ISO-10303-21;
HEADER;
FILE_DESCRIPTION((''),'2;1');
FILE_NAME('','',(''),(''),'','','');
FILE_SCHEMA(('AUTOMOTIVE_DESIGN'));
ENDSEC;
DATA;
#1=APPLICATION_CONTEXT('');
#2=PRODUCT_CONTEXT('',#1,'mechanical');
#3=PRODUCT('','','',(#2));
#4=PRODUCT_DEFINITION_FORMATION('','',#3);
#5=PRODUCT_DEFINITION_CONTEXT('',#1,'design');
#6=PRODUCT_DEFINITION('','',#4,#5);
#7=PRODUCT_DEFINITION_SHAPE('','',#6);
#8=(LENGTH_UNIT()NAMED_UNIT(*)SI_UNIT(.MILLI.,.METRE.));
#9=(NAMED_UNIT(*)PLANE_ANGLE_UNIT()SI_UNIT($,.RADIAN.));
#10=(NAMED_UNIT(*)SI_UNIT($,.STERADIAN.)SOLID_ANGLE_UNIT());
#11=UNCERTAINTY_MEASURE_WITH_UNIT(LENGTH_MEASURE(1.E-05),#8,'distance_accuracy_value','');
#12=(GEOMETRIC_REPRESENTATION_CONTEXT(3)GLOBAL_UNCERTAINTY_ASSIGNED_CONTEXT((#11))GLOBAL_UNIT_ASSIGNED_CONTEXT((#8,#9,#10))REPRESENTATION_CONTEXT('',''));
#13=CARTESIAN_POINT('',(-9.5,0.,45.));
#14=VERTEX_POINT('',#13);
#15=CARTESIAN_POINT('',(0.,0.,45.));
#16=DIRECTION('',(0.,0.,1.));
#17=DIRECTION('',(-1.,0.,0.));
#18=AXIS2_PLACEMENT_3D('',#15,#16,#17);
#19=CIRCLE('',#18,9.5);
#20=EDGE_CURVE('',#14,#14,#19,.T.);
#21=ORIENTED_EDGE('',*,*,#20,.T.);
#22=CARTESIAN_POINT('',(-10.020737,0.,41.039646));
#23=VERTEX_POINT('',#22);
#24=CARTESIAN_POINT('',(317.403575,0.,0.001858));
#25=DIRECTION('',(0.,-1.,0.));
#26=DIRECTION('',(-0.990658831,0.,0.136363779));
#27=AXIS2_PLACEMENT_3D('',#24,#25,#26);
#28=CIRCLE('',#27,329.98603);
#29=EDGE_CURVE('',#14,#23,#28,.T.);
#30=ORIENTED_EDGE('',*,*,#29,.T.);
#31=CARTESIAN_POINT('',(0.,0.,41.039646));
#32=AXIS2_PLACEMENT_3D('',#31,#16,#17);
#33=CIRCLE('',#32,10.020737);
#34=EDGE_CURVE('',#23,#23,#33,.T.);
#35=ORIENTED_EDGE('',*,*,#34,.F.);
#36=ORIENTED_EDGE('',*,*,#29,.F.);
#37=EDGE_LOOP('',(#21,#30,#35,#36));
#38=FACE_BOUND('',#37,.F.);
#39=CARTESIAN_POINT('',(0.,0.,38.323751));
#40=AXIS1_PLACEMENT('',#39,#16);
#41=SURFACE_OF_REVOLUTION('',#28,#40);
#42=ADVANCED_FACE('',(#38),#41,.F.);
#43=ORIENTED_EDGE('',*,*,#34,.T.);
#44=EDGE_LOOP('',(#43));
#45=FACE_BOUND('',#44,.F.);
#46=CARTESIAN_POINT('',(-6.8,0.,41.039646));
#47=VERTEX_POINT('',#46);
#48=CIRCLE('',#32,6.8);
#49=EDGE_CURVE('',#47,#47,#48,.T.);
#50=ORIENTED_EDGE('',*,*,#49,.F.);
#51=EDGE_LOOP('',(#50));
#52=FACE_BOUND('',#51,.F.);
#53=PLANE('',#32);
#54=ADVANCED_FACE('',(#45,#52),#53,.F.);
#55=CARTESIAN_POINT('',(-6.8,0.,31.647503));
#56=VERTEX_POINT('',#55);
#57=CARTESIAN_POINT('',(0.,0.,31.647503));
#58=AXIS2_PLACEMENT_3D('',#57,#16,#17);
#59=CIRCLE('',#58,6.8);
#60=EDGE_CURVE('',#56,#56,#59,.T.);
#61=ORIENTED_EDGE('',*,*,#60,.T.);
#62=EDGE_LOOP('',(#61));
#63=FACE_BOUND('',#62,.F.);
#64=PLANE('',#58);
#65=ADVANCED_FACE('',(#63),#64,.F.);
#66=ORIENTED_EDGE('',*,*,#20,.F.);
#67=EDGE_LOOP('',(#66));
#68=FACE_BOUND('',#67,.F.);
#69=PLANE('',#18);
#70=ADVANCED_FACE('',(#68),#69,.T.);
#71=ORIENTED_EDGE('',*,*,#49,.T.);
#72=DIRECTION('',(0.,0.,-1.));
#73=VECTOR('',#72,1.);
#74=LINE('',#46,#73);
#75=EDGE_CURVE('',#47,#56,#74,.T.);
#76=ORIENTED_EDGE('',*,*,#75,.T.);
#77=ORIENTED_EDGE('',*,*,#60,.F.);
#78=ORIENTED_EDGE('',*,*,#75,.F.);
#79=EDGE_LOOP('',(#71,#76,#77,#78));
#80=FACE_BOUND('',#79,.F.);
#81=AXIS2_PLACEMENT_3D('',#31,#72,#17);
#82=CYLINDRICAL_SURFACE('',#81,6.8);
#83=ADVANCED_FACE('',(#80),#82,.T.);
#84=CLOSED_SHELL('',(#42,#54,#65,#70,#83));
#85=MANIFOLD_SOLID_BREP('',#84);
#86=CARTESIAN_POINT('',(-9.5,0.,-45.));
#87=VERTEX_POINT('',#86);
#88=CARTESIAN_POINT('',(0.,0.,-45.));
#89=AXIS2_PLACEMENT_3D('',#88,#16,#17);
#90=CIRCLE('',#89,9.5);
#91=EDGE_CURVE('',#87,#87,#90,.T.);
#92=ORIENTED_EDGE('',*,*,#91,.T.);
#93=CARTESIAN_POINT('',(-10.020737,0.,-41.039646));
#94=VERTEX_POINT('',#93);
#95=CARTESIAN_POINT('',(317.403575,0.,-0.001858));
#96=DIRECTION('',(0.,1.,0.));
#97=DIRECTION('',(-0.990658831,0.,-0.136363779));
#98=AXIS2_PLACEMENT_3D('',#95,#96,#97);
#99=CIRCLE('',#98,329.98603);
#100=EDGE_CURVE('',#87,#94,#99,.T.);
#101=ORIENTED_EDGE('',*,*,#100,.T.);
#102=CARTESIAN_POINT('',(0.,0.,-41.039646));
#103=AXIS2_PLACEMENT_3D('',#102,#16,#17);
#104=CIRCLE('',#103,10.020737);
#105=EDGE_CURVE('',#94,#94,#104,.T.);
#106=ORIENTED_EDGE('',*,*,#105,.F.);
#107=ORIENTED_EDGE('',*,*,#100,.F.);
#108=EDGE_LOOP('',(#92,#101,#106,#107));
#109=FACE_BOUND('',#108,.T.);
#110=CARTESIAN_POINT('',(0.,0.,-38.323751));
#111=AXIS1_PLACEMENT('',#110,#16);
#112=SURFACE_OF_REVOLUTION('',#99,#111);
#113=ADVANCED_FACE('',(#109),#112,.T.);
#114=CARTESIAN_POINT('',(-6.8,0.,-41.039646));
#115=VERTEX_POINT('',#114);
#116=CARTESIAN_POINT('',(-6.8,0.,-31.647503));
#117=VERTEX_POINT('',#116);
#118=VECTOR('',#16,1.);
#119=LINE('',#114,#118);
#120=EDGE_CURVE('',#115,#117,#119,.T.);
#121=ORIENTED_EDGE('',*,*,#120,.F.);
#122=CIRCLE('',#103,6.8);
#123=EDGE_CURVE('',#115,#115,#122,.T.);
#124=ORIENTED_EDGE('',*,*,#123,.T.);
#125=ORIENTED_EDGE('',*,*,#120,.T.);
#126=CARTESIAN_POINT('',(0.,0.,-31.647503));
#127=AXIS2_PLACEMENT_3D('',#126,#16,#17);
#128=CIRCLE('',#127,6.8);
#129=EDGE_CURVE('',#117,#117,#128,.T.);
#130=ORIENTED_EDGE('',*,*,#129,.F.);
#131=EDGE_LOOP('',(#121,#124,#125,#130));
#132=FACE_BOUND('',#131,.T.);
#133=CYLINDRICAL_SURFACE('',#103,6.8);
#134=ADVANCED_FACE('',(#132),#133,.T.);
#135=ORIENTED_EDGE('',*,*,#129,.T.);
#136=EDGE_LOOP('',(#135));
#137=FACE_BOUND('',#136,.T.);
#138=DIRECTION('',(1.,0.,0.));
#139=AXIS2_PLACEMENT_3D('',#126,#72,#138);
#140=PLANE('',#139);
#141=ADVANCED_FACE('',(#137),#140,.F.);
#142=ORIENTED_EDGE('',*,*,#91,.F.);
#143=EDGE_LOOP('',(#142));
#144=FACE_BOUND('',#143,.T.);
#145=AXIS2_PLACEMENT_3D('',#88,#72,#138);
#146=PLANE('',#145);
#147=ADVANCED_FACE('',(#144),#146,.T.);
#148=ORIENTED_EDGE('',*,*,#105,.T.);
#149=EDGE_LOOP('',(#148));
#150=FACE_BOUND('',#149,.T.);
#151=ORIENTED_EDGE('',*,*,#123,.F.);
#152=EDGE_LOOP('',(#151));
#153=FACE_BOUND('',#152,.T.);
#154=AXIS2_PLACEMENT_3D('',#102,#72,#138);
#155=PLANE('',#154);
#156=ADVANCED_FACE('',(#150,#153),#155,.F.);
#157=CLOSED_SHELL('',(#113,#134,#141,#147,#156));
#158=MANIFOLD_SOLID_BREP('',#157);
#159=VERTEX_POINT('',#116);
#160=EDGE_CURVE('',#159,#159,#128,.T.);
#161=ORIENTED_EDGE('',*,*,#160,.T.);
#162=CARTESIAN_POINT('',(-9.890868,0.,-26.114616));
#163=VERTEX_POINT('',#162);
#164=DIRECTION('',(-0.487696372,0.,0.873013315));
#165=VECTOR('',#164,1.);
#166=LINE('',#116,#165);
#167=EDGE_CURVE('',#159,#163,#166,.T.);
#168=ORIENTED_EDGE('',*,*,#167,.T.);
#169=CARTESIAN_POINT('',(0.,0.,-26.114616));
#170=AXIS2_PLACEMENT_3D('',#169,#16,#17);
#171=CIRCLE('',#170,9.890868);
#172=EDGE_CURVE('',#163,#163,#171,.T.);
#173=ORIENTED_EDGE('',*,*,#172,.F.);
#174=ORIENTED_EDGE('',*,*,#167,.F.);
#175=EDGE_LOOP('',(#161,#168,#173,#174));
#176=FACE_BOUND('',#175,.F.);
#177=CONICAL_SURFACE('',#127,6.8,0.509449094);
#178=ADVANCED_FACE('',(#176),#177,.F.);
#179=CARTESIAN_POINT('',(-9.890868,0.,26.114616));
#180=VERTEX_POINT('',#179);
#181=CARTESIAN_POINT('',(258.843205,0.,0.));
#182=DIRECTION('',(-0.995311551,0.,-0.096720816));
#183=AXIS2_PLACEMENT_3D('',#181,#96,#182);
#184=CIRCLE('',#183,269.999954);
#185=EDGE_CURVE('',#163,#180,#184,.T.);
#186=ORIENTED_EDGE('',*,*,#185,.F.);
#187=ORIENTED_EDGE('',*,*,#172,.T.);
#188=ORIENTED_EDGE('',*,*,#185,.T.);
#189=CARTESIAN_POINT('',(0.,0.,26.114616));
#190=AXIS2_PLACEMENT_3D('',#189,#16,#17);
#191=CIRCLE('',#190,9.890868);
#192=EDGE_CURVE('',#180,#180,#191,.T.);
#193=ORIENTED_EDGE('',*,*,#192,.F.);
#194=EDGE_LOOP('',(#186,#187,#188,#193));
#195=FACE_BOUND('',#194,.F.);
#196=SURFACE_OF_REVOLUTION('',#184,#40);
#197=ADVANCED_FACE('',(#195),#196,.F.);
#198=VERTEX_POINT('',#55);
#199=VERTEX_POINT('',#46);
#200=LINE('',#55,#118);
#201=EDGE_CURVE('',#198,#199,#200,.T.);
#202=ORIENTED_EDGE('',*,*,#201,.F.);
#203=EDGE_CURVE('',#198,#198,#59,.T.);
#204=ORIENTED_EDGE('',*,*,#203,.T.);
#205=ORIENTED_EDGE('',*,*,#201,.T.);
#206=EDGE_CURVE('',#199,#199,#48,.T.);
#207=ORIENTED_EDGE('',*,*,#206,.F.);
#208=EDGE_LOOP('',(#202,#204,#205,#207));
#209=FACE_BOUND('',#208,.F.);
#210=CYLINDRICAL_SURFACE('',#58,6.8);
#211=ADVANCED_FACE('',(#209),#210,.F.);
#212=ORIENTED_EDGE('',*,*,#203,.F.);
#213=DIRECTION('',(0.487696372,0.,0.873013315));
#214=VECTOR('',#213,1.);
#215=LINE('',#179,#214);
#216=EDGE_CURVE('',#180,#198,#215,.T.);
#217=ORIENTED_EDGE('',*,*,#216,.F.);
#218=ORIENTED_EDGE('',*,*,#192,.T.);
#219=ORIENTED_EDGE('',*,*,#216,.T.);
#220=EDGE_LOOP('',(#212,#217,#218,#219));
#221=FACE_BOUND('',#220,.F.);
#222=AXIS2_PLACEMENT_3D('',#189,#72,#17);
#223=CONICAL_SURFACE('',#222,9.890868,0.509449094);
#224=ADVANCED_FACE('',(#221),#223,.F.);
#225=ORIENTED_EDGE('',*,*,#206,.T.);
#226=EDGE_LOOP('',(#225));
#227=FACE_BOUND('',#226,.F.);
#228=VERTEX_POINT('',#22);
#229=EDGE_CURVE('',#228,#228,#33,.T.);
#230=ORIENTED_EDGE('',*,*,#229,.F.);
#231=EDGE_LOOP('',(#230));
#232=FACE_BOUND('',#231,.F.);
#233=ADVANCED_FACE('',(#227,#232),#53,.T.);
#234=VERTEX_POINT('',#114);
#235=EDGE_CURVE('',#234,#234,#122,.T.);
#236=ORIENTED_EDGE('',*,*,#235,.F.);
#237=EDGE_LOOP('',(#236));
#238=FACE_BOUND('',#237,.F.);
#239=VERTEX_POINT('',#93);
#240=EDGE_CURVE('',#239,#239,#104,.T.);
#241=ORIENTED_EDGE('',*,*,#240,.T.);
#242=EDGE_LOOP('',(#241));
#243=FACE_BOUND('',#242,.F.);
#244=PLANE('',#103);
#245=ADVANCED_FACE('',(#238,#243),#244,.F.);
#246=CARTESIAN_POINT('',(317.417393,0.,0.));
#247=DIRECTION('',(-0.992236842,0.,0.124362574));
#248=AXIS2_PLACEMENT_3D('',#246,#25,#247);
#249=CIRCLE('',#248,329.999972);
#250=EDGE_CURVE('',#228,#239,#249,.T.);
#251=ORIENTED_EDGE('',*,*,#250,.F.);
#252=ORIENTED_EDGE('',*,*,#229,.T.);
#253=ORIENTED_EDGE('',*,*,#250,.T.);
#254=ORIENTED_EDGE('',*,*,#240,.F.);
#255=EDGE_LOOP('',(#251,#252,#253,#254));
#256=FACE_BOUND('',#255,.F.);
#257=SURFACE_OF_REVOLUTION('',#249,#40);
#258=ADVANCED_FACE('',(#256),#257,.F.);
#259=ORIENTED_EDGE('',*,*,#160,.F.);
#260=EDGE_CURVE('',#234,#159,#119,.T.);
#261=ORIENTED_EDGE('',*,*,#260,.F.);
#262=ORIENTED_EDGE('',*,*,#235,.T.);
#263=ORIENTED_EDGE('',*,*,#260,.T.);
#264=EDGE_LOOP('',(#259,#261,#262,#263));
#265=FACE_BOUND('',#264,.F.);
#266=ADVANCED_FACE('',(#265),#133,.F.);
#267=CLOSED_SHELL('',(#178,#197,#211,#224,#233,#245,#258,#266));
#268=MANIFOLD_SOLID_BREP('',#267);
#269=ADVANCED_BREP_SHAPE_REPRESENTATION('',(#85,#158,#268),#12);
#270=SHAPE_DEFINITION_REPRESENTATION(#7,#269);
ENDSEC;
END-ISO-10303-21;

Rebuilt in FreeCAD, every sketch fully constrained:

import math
import FreeCAD as App
import Part
import Sketcher
from FreeCAD import Vector
Q = App.Units.Quantity

doc = App.newDocument("Part")
body = doc.addObject("PartDesign::Body", "Body")

# Sketch on XZ plane
sketch1 = body.newObject("Sketcher::SketchObject", "Sketch")
sketch1.AttachmentSupport = (doc.getObject("XZ_Plane"), [""])
sketch1.MapMode = "FlatFace"
sketch1.addGeometry(Part.LineSegment(Vector(-6.8, 41, 0), Vector(-10, 41, 0)), False)
sketch1.addGeometry(Part.ArcOfCircle(Part.Circle(Vector(317.4, 0, 0), Vector(0, 0, 1), 330), math.radians(172.86), math.radians(187.14)), False)
sketch1.addGeometry(Part.LineSegment(Vector(-10, -41, 0), Vector(-6.8, -41, 0)), False)
sketch1.addGeometry(Part.LineSegment(Vector(-6.8, -41, 0), Vector(-6.8, -31.6, 0)), False)
sketch1.addGeometry(Part.LineSegment(Vector(-6.8, -31.6, 0), Vector(-9.9, -26.1, 0)), False)
sketch1.addGeometry(Part.ArcOfCircle(Part.Circle(Vector(258.8, 0, 0), Vector(0, 0, 1), 270), math.radians(174.45), math.radians(185.55)), False)
sketch1.addGeometry(Part.LineSegment(Vector(-9.9, 26.1, 0), Vector(-6.8, 31.6, 0)), False)
sketch1.addGeometry(Part.LineSegment(Vector(-6.8, 31.6, 0), Vector(-6.8, 41, 0)), False)
sketch1.addConstraint(Sketcher.Constraint("Coincident", 0, 2, 1, 1))
sketch1.addConstraint(Sketcher.Constraint("Coincident", 1, 2, 2, 1))
sketch1.addConstraint(Sketcher.Constraint("Coincident", 2, 2, 3, 1))
sketch1.addConstraint(Sketcher.Constraint("Coincident", 3, 2, 4, 1))
sketch1.addConstraint(Sketcher.Constraint("Coincident", 4, 2, 5, 2))
sketch1.addConstraint(Sketcher.Constraint("Coincident", 5, 1, 6, 1))
sketch1.addConstraint(Sketcher.Constraint("Coincident", 6, 2, 7, 1))
sketch1.addConstraint(Sketcher.Constraint("Coincident", 7, 2, 0, 1))
sketch1.addConstraint(Sketcher.Constraint("Horizontal", 0))
sketch1.addConstraint(Sketcher.Constraint("Horizontal", 2))
sketch1.addConstraint(Sketcher.Constraint("Vertical", 3))
sketch1.addConstraint(Sketcher.Constraint("Vertical", 7))
sketch1.addConstraint(Sketcher.Constraint("Symmetric", 0, 2, 1, 2, -1))
sketch1.addConstraint(Sketcher.Constraint("Symmetric", 4, 2, 5, 1, -1))
sketch1.addConstraint(Sketcher.Constraint("Symmetric", 3, 2, 6, 2, -1))
sketch1.addConstraint(Sketcher.Constraint("DistanceX", 2, 2, -1, 1, Q("6.8 mm")))
sketch1.addConstraint(Sketcher.Constraint("Radius", 1, Q("329.999972 mm")))
sketch1.addConstraint(Sketcher.Constraint("Radius", 5, Q("269.999954 mm")))
sketch1.addConstraint(Sketcher.Constraint("Distance", 4, Q("6.337689 mm")))
sketch1.addConstraint(Sketcher.Constraint("DistanceX", 0, 2, 0, 1, Q("3.220737 mm")))
sketch1.addConstraint(Sketcher.Constraint("DistanceY", 3, 1, 3, 2, Q("9.392143 mm")))
sketch1.addConstraint(Sketcher.Constraint("DistanceX", 5, 1, -1, 1, Q("9.890868 mm")))
sketch1.addConstraint(Sketcher.Constraint("DistanceX", 5, 3, 1, 3, Q("58.574188 mm")))
revolution = body.newObject("PartDesign::Revolution", "Revolution")
revolution.Profile = sketch1
revolution.ReferenceAxis = (sketch1, ["V_Axis"])
revolution.Angle = 360
body2 = doc.addObject("PartDesign::Body", "Body001")

# Sketch on XZ plane
sketch2 = body2.newObject("Sketcher::SketchObject", "Sketch001")
sketch2.AttachmentSupport = (doc.getObject("XZ_Plane001"), [""])
sketch2.MapMode = "FlatFace"
sketch2.addGeometry(Part.LineSegment(Vector(0, 31.6, 0), Vector(0, 45, 0)), False)
sketch2.addGeometry(Part.LineSegment(Vector(0, 45, 0), Vector(-9.5, 45, 0)), False)
sketch2.addGeometry(Part.ArcOfCircle(Part.Circle(Vector(317.4, 0, 0), Vector(0, 0, 1), 330), math.radians(172.16), math.radians(172.86)), False)
sketch2.addGeometry(Part.LineSegment(Vector(-10, 41, 0), Vector(-6.8, 41, 0)), False)
sketch2.addGeometry(Part.LineSegment(Vector(-6.8, 41, 0), Vector(-6.8, 31.6, 0)), False)
sketch2.addGeometry(Part.LineSegment(Vector(-6.8, 31.6, 0), Vector(0, 31.6, 0)), False)
sketch2.addConstraint(Sketcher.Constraint("Coincident", 0, 2, 1, 1))
sketch2.addConstraint(Sketcher.Constraint("Coincident", 1, 2, 2, 1))
sketch2.addConstraint(Sketcher.Constraint("Coincident", 2, 2, 3, 1))
sketch2.addConstraint(Sketcher.Constraint("Coincident", 3, 2, 4, 1))
sketch2.addConstraint(Sketcher.Constraint("Coincident", 4, 2, 5, 1))
sketch2.addConstraint(Sketcher.Constraint("Coincident", 5, 2, 0, 1))
sketch2.addConstraint(Sketcher.Constraint("Vertical", 0))
sketch2.addConstraint(Sketcher.Constraint("Horizontal", 1))
sketch2.addConstraint(Sketcher.Constraint("Horizontal", 3))
sketch2.addConstraint(Sketcher.Constraint("Vertical", 4))
sketch2.addConstraint(Sketcher.Constraint("Horizontal", 5))
sketch2.addConstraint(Sketcher.Constraint("PointOnObject", 0, 2, -2))
sketch2.addConstraint(Sketcher.Constraint("DistanceX", 1, 2, 1, 1, Q("9.5 mm")))
sketch2.addConstraint(Sketcher.Constraint("DistanceX", 5, 1, 5, 2, Q("6.8 mm")))
sketch2.addConstraint(Sketcher.Constraint("DistanceY", -1, 1, 0, 2, Q("45 mm")))
sketch2.addConstraint(Sketcher.Constraint("Radius", 2, Q("329.98603 mm")))
sketch2.addConstraint(Sketcher.Constraint("DistanceX", 3, 1, 3, 2, Q("3.220737 mm")))
sketch2.addConstraint(Sketcher.Constraint("DistanceY", 0, 1, 0, 2, Q("13.352497 mm")))
sketch2.addConstraint(Sketcher.Constraint("DistanceY", 4, 2, 4, 1, Q("9.392143 mm")))
revolution2 = body2.newObject("PartDesign::Revolution", "Revolution001")
revolution2.Profile = sketch2
revolution2.ReferenceAxis = (sketch2, ["V_Axis"])
revolution2.Angle = 360
body3 = doc.addObject("PartDesign::Body", "Body002")
doc.recompute()

mirroring = doc.addObject("Part::Mirroring", "Mirroring")
mirroring.Source = body2
mirroring.Base = Vector(0, 0, 0)
mirroring.Normal = Vector(0, 0, 1)
body3.BaseFeature = mirroring
doc.recompute()
mirroring.Visibility = False

doc.recompute()
